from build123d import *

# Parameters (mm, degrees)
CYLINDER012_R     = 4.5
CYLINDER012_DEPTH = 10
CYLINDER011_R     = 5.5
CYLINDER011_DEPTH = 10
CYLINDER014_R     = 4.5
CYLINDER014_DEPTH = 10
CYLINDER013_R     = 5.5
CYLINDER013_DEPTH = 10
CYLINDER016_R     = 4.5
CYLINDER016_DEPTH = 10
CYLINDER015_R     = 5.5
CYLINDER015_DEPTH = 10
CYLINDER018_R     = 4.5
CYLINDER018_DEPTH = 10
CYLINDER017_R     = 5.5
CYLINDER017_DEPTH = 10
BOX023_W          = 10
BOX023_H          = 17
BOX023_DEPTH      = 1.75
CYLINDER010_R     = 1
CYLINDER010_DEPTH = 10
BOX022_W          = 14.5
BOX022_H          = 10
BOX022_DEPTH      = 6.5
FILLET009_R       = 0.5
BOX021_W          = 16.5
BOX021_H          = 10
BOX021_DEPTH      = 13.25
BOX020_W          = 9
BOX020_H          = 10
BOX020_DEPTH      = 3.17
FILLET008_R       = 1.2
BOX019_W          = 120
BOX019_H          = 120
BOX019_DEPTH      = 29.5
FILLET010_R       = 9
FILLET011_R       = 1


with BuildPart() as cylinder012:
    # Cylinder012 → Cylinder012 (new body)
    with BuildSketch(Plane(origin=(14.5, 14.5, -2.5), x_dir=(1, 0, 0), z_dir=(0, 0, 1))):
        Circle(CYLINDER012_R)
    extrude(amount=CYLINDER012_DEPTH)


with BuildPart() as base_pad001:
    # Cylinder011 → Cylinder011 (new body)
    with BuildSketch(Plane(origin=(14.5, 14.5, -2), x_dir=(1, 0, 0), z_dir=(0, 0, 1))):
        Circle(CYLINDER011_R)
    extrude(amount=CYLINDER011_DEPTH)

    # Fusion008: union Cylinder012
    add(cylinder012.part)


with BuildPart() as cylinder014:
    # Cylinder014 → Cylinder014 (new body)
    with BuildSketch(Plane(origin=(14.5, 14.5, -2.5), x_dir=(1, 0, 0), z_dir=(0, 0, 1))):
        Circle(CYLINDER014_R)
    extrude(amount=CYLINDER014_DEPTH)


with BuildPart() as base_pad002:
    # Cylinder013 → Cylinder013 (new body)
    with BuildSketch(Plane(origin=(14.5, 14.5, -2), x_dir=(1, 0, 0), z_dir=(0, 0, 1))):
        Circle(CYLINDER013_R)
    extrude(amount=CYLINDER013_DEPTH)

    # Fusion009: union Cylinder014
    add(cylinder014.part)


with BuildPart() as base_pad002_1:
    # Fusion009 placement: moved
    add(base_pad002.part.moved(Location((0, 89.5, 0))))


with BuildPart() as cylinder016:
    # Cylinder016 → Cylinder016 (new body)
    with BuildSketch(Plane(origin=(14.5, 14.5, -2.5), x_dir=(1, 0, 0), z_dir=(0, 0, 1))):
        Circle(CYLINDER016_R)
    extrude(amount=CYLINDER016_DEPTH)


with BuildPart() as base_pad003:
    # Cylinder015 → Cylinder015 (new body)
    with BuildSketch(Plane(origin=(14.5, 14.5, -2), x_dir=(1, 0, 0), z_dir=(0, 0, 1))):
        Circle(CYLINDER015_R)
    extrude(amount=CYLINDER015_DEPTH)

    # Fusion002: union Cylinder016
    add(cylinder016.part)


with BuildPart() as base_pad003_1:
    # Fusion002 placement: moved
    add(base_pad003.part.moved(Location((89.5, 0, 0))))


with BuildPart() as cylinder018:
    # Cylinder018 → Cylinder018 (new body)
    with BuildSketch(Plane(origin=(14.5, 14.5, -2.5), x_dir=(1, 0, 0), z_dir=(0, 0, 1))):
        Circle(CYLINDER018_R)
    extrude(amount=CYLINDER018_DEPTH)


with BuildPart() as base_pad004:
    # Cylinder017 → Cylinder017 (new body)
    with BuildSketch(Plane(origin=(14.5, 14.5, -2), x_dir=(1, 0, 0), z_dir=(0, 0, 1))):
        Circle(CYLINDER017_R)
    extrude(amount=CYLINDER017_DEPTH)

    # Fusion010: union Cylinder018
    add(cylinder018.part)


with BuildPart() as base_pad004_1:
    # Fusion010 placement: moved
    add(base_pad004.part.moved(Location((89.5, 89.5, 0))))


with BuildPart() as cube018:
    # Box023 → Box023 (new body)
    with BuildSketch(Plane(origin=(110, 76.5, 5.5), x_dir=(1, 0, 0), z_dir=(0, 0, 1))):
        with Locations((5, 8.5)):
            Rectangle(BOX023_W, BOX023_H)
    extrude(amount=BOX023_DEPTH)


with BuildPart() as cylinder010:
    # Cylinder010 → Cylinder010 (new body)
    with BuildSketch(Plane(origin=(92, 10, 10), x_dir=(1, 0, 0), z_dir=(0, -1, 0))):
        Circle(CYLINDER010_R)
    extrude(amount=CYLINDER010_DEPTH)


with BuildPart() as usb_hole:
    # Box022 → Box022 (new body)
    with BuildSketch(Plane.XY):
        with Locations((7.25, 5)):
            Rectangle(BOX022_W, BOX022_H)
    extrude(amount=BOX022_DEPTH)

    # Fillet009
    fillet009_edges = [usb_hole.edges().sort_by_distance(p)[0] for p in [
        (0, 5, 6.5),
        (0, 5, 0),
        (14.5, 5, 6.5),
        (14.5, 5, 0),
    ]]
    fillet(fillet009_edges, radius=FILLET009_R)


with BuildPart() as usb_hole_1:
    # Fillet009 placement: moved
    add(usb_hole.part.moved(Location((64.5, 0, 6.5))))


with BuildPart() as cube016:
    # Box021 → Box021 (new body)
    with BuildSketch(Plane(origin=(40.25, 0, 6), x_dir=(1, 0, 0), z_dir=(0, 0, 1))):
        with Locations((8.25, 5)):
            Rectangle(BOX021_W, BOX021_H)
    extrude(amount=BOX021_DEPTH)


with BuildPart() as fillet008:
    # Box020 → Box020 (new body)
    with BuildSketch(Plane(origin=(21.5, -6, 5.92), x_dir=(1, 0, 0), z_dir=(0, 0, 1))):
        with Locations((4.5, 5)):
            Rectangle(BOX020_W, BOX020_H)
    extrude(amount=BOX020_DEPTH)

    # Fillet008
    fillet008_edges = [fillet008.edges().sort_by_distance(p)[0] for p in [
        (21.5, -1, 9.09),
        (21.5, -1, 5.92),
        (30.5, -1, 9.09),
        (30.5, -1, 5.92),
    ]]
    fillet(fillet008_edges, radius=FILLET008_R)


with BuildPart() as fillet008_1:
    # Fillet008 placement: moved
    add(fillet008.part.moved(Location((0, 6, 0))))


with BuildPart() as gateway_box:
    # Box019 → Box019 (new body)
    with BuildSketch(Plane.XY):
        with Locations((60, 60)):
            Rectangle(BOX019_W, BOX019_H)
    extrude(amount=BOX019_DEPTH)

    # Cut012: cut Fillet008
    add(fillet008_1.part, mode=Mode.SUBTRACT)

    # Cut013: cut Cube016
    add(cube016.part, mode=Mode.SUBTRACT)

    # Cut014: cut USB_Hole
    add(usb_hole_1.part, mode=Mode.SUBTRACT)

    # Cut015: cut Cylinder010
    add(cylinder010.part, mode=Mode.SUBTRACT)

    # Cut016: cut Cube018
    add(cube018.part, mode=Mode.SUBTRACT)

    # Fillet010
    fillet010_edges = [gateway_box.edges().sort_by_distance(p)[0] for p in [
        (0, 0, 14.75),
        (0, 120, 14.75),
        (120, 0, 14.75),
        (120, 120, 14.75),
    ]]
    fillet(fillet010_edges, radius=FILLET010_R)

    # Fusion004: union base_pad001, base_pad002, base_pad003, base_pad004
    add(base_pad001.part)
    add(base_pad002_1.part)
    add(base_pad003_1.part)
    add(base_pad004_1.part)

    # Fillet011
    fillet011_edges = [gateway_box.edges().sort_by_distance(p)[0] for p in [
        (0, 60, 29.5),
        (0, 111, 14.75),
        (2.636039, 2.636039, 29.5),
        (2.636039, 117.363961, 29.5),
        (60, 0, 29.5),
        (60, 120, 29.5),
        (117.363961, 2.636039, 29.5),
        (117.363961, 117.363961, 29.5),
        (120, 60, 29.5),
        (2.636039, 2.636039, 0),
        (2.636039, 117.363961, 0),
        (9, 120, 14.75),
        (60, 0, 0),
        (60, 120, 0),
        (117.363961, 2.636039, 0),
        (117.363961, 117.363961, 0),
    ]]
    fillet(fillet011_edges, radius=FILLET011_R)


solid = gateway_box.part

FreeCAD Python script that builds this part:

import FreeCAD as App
import Part
import Sketcher
from FreeCAD import Vector
Q = App.Units.Quantity


def edges_at(feature, points):
    """Names of the edges that pass closest to the given points."""
    edges = feature.Shape.Edges
    near = lambda p: min(range(len(edges)), key=lambda i: edges[i].distToShape(Part.Vertex(*p))[0])
    return sorted({f"Edge{near(p) + 1}" for p in points})


def add_polygon(sketch, points):
    """Adds a closed chain of lines whose ends are joined by coincident constraints."""
    first, n = sketch.GeometryCount, len(points)
    for a, b in zip(points, points[1:] + points[:1]):
        sketch.addGeometry(Part.LineSegment(App.Vector(*a, 0), App.Vector(*b, 0)), False)
    for i in range(n):
        sketch.addConstraint(Sketcher.Constraint("Coincident", first + i, 2, first + (i + 1) % n, 1))

doc = App.newDocument("Part")
params = doc.addObject("Spreadsheet::Sheet", "Params")
for row, (alias, value) in enumerate([
    ("sketch1_diameter", "9 mm"),
    ("pad1_length", "10 mm"),
    ("sketch2_diameter", "11 mm"),
    ("pad2_length", "10 mm"),
    ("sketch3_diameter", "9 mm"),
    ("pad3_length", "10 mm"),
    ("sketch4_diameter", "11 mm"),
    ("pad4_length", "10 mm"),
    ("sketch5_diameter", "9 mm"),
    ("pad5_length", "10 mm"),
    ("sketch6_diameter", "11 mm"),
    ("pad6_length", "10 mm"),
    ("sketch7_diameter", "9 mm"),
    ("pad7_length", "10 mm"),
    ("sketch8_diameter", "11 mm"),
    ("pad8_length", "10 mm"),
    ("sketch9_width", "10 mm"),
    ("sketch9_height", "17 mm"),
    ("pad9_length", "1.75 mm"),
    ("sketch10_diameter", "2 mm"),
    ("pad10_length", "10 mm"),
    ("sketch11_height", "10 mm"),
    ("sketch11_width", "14.5 mm"),
    ("pad11_length", "6.5 mm"),
    ("fillet_radius", "0.5 mm"),
    ("sketch12_height", "10 mm"),
    ("sketch12_width", "16.5 mm"),
    ("pad12_length", "13.25 mm"),
    ("sketch13_width", "9 mm"),
    ("sketch13_height", "10 mm"),
    ("pad13_length", "3.17 mm"),
    ("fillet2_radius", "1.2 mm"),
    ("sketch14_width", "120 mm"),
    ("pad14_length", "29.5 mm"),
    ("fillet3_radius", "9 mm"),
    ("fillet4_radius", "1 mm"),
], start=1):
    params.set(f"A{row}", alias)
    params.set(f"B{row}", "=" + value)
    params.setAlias(f"B{row}", alias)

body = doc.addObject("PartDesign::Body", "Body")

# Sketch on XY plane
sketch1 = body.newObject("Sketcher::SketchObject", "Sketch")
sketch1.AttachmentSupport = (doc.getObject("XY_Plane"), [""])
sketch1.MapMode = "FlatFace"
sketch1.AttachmentOffset = App.Placement(Vector(0, 0, -2.5), App.Rotation())
sketch1.addGeometry(Part.Circle(Vector(14.5, 14.5, 0), Vector(0, 0, 1), 4.5), False)
sketch1.addConstraint(Sketcher.Constraint("Diameter", 0, Q("9 mm")))
sketch1.addConstraint(Sketcher.Constraint("DistanceX", -1, 1, 0, 3, Q("14.5 mm")))
sketch1.addConstraint(Sketcher.Constraint("DistanceY", -1, 1, 0, 3, Q("14.5 mm")))
sketch1.setExpression("Constraints[0]", "Params.sketch1_diameter")
pad1 = body.newObject("PartDesign::Pad", "Pad")
pad1.Profile = sketch1
pad1.setExpression("Length", "Params.pad1_length")
body2 = doc.addObject("PartDesign::Body", "Body001")

# Sketch on XY plane
sketch2 = body2.newObject("Sketcher::SketchObject", "Sketch001")
sketch2.AttachmentSupport = (doc.getObject("XY_Plane001"), [""])
sketch2.MapMode = "FlatFace"
sketch2.AttachmentOffset = App.Placement(Vector(0, 0, -2), App.Rotation())
sketch2.addGeometry(Part.Circle(Vector(14, 14, 0), Vector(0, 0, 1), 6), False)
sketch2.addConstraint(Sketcher.Constraint("Diameter", 0, Q("11 mm")))
sketch2.addConstraint(Sketcher.Constraint("DistanceX", -1, 1, 0, 3, Q("14.5 mm")))
sketch2.addConstraint(Sketcher.Constraint("DistanceY", -1, 1, 0, 3, Q("14.5 mm")))
sketch2.setExpression("Constraints[0]", "Params.sketch2_diameter")
pad2 = body2.newObject("PartDesign::Pad", "Pad001")
pad2.Profile = sketch2
pad2.setExpression("Length", "Params.pad2_length")
doc.recompute()

boolean = body2.newObject("PartDesign::Boolean", "Boolean")
boolean.Type = "Fuse"
boolean.addObjects([body])
body3 = doc.addObject("PartDesign::Body", "Body002")

# Sketch on XY plane
sketch3 = body3.newObject("Sketcher::SketchObject", "Sketch002")
sketch3.AttachmentSupport = (doc.getObject("XY_Plane002"), [""])
sketch3.MapMode = "FlatFace"
sketch3.AttachmentOffset = App.Placement(Vector(0, 0, -2.5), App.Rotation())
sketch3.addGeometry(Part.Circle(Vector(14.5, 14.5, 0), Vector(0, 0, 1), 4.5), False)
sketch3.addConstraint(Sketcher.Constraint("Diameter", 0, Q("9 mm")))
sketch3.addConstraint(Sketcher.Constraint("DistanceX", -1, 1, 0, 3, Q("14.5 mm")))
sketch3.addConstraint(Sketcher.Constraint("DistanceY", -1, 1, 0, 3, Q("14.5 mm")))
sketch3.setExpression("Constraints[0]", "Params.sketch3_diameter")
pad3 = body3.newObject("PartDesign::Pad", "Pad002")
pad3.Profile = sketch3
pad3.setExpression("Length", "Params.pad3_length")
body4 = doc.addObject("PartDesign::Body", "Body003")

# Sketch on XY plane
sketch4 = body4.newObject("Sketcher::SketchObject", "Sketch003")
sketch4.AttachmentSupport = (doc.getObject("XY_Plane003"), [""])
sketch4.MapMode = "FlatFace"
sketch4.AttachmentOffset = App.Placement(Vector(0, 0, -2), App.Rotation())
sketch4.addGeometry(Part.Circle(Vector(14, 14, 0), Vector(0, 0, 1), 6), False)
sketch4.addConstraint(Sketcher.Constraint("Diameter", 0, Q("11 mm")))
sketch4.addConstraint(Sketcher.Constraint("DistanceX", -1, 1, 0, 3, Q("14.5 mm")))
sketch4.addConstraint(Sketcher.Constraint("DistanceY", -1, 1, 0, 3, Q("14.5 mm")))
sketch4.setExpression("Constraints[0]", "Params.sketch4_diameter")
pad4 = body4.newObject("PartDesign::Pad", "Pad003")
pad4.Profile = sketch4
pad4.setExpression("Length", "Params.pad4_length")
doc.recompute()

boolean2 = body4.newObject("PartDesign::Boolean", "Boolean001")
boolean2.Type = "Fuse"
boolean2.addObjects([body3])
body5 = doc.addObject("PartDesign::Body", "Body004")
doc.recompute()

body4.Placement = App.Placement(Vector(0, 89.5, 0), App.Rotation(Vector(0, 0, 1), 0))
boolean3 = body5.newObject("PartDesign::Boolean", "Boolean002")
boolean3.Type = "Fuse"
boolean3.addObjects([body4])
body6 = doc.addObject("PartDesign::Body", "Body005")

# Sketch on XY plane
sketch5 = body6.newObject("Sketcher::SketchObject", "Sketch004")
sketch5.AttachmentSupport = (doc.getObject("XY_Plane005"), [""])
sketch5.MapMode = "FlatFace"
sketch5.AttachmentOffset = App.Placement(Vector(0, 0, -2.5), App.Rotation())
sketch5.addGeometry(Part.Circle(Vector(14.5, 14.5, 0), Vector(0, 0, 1), 4.5), False)
sketch5.addConstraint(Sketcher.Constraint("Diameter", 0, Q("9 mm")))
sketch5.addConstraint(Sketcher.Constraint("DistanceX", -1, 1, 0, 3, Q("14.5 mm")))
sketch5.addConstraint(Sketcher.Constraint("DistanceY", -1, 1, 0, 3, Q("14.5 mm")))
sketch5.setExpression("Constraints[0]", "Params.sketch5_diameter")
pad5 = body6.newObject("PartDesign::Pad", "Pad004")
pad5.Profile = sketch5
pad5.setExpression("Length", "Params.pad5_length")
body7 = doc.addObject("PartDesign::Body", "Body006")

# Sketch on XY plane
sketch6 = body7.newObject("Sketcher::SketchObject", "Sketch005")
sketch6.AttachmentSupport = (doc.getObject("XY_Plane006"), [""])
sketch6.MapMode = "FlatFace"
sketch6.AttachmentOffset = App.Placement(Vector(0, 0, -2), App.Rotation())
sketch6.addGeometry(Part.Circle(Vector(14, 14, 0), Vector(0, 0, 1), 6), False)
sketch6.addConstraint(Sketcher.Constraint("Diameter", 0, Q("11 mm")))
sketch6.addConstraint(Sketcher.Constraint("DistanceX", -1, 1, 0, 3, Q("14.5 mm")))
sketch6.addConstraint(Sketcher.Constraint("DistanceY", -1, 1, 0, 3, Q("14.5 mm")))
sketch6.setExpression("Constraints[0]", "Params.sketch6_diameter")
pad6 = body7.newObject("PartDesign::Pad", "Pad005")
pad6.Profile = sketch6
pad6.setExpression("Length", "Params.pad6_length")
doc.recompute()

boolean4 = body7.newObject("PartDesign::Boolean", "Boolean003")
boolean4.Type = "Fuse"
boolean4.addObjects([body6])
body8 = doc.addObject("PartDesign::Body", "Body007")
doc.recompute()

body7.Placement = App.Placement(Vector(89.5, 0, 0), App.Rotation(Vector(0, 0, 1), 0))
boolean5 = body8.newObject("PartDesign::Boolean", "Boolean004")
boolean5.Type = "Fuse"
boolean5.addObjects([body7])
body9 = doc.addObject("PartDesign::Body", "Body008")

# Sketch on XY plane
sketch7 = body9.newObject("Sketcher::SketchObject", "Sketch006")
sketch7.AttachmentSupport = (doc.getObject("XY_Plane008"), [""])
sketch7.MapMode = "FlatFace"
sketch7.AttachmentOffset = App.Placement(Vector(0, 0, -2.5), App.Rotation())
sketch7.addGeometry(Part.Circle(Vector(14.5, 14.5, 0), Vector(0, 0, 1), 4.5), False)
sketch7.addConstraint(Sketcher.Constraint("Diameter", 0, Q("9 mm")))
sketch7.addConstraint(Sketcher.Constraint("DistanceX", -1, 1, 0, 3, Q("14.5 mm")))
sketch7.addConstraint(Sketcher.Constraint("DistanceY", -1, 1, 0, 3, Q("14.5 mm")))
sketch7.setExpression("Constraints[0]", "Params.sketch7_diameter")
pad7 = body9.newObject("PartDesign::Pad", "Pad006")
pad7.Profile = sketch7
pad7.setExpression("Length", "Params.pad7_length")
body10 = doc.addObject("PartDesign::Body", "Body009")

# Sketch on XY plane
sketch8 = body10.newObject("Sketcher::SketchObject", "Sketch007")
sketch8.AttachmentSupport = (doc.getObject("XY_Plane009"), [""])
sketch8.MapMode = "FlatFace"
sketch8.AttachmentOffset = App.Placement(Vector(0, 0, -2), App.Rotation())
sketch8.addGeometry(Part.Circle(Vector(14, 14, 0), Vector(0, 0, 1), 6), False)
sketch8.addConstraint(Sketcher.Constraint("Diameter", 0, Q("11 mm")))
sketch8.addConstraint(Sketcher.Constraint("DistanceX", -1, 1, 0, 3, Q("14.5 mm")))
sketch8.addConstraint(Sketcher.Constraint("DistanceY", -1, 1, 0, 3, Q("14.5 mm")))
sketch8.setExpression("Constraints[0]", "Params.sketch8_diameter")
pad8 = body10.newObject("PartDesign::Pad", "Pad007")
pad8.Profile = sketch8
pad8.setExpression("Length", "Params.pad8_length")
doc.recompute()

boolean6 = body10.newObject("PartDesign::Boolean", "Boolean005")
boolean6.Type = "Fuse"
boolean6.addObjects([body9])
body11 = doc.addObject("PartDesign::Body", "Body010")
doc.recompute()

body10.Placement = App.Placement(Vector(89.5, 89.5, 0), App.Rotation(Vector(0, 0, 1), 0))
boolean7 = body11.newObject("PartDesign::Boolean", "Boolean006")
boolean7.Type = "Fuse"
boolean7.addObjects([body10])
body12 = doc.addObject("PartDesign::Body", "Body011")

# Sketch on XY plane
sketch9 = body12.newObject("Sketcher::SketchObject", "Sketch008")
sketch9.AttachmentSupport = (doc.getObject("XY_Plane011"), [""])
sketch9.MapMode = "FlatFace"
sketch9.AttachmentOffset = App.Placement(Vector(0, 0, 5.5), App.Rotation())
add_polygon(sketch9, [(110, 94), (110, 76), (120, 76), (120, 94)])  # lines 0-3
sketch9.addConstraint(Sketcher.Constraint("Vertical", 0))
sketch9.addConstraint(Sketcher.Constraint("Horizontal", 1))
sketch9.addConstraint(Sketcher.Constraint("Vertical", 2))
sketch9.addConstraint(Sketcher.Constraint("Horizontal", 3))
sketch9.addConstraint(Sketcher.Constraint("DistanceX", 1, 1, 1, 2, Q("10 mm")))
sketch9.addConstraint(Sketcher.Constraint("DistanceY", 0, 2, 0, 1, Q("17 mm")))
sketch9.addConstraint(Sketcher.Constraint("DistanceX", -1, 1, 0, 2, Q("110 mm")))
sketch9.addConstraint(Sketcher.Constraint("DistanceY", -1, 1, 0, 2, Q("76.5 mm")))
sketch9.setExpression("Constraints[8]", "Params.sketch9_width")
sketch9.setExpression("Constraints[9]", "Params.sketch9_height")
pad9 = body12.newObject("PartDesign::Pad", "Pad008")
pad9.Profile = sketch9
pad9.setExpression("Length", "Params.pad9_length")
body13 = doc.addObject("PartDesign::Body", "Body012")

# Sketch on XZ plane
sketch10 = body13.newObject("Sketcher::SketchObject", "Sketch009")
sketch10.AttachmentSupport = (doc.getObject("XZ_Plane012"), [""])
sketch10.MapMode = "FlatFace"
sketch10.AttachmentOffset = App.Placement(Vector(0, 0, -10), App.Rotation())
sketch10.addGeometry(Part.Circle(Vector(92, 10, 0), Vector(0, 0, 1), 1), False)
sketch10.addConstraint(Sketcher.Constraint("Diameter", 0, Q("2 mm")))
sketch10.addConstraint(Sketcher.Constraint("DistanceX", -1, 1, 0, 3, Q("92 mm")))
sketch10.addConstraint(Sketcher.Constraint("DistanceY", -1, 1, 0, 3, Q("10 mm")))
sketch10.setExpression("Constraints[0]", "Params.sketch10_diameter")
pad10 = body13.newObject("PartDesign::Pad", "Pad009")
pad10.Profile = sketch10
pad10.setExpression("Length", "Params.pad10_length")
body14 = doc.addObject("PartDesign::Body", "Body013")

# Sketch on XY plane
sketch11 = body14.newObject("Sketcher::SketchObject", "Sketch010")
sketch11.AttachmentSupport = (doc.getObject("XY_Plane013"), [""])
sketch11.MapMode = "FlatFace"
add_polygon(sketch11, [(0, 10), (0, 0), (14, 0), (14, 10)])  # lines 0-3
sketch11.addConstraint(Sketcher.Constraint("Vertical", 0))
sketch11.addConstraint(Sketcher.Constraint("Horizontal", 1))
sketch11.addConstraint(Sketcher.Constraint("Vertical", 2))
sketch11.addConstraint(Sketcher.Constraint("Horizontal", 3))
sketch11.addConstraint(Sketcher.Constraint("Coincident", 0, 2, -1, 1))
sketch11.addConstraint(Sketcher.Constraint("DistanceY", 0, 2, 0, 1, Q("10 mm")))
sketch11.addConstraint(Sketcher.Constraint("DistanceX", 1, 1, 1, 2, Q("14.5 mm")))
sketch11.setExpression("Constraints[9]", "Params.sketch11_height")
sketch11.setExpression("Constraints[10]", "Params.sketch11_width")
pad11 = body14.newObject("PartDesign::Pad", "Pad010")
pad11.Profile = sketch11
pad11.setExpression("Length", "Params.pad11_length")
doc.recompute()

fillet = body14.newObject("PartDesign::Fillet", "Fillet")
fillet.Base = (pad11, edges_at(pad11, [
    (0, 5, 6.5),
    (0, 5, 0),
    (14.5, 5, 6.5),
    (14.5, 5, 0),
]))
fillet.setExpression("Radius", "Params.fillet_radius")
body15 = doc.addObject("PartDesign::Body", "Body014")
doc.recompute()

body14.Placement = App.Placement(Vector(64.5, 0, 6.5), App.Rotation(Vector(0, 0, 1), 0))
boolean8 = body15.newObject("PartDesign::Boolean", "Boolean007")
boolean8.Type = "Fuse"
boolean8.addObjects([body14])
body16 = doc.addObject("PartDesign::Body", "Body015")

# Sketch on XY plane
sketch12 = body16.newObject("Sketcher::SketchObject", "Sketch011")
sketch12.AttachmentSupport = (doc.getObject("XY_Plane015"), [""])
sketch12.MapMode = "FlatFace"
sketch12.AttachmentOffset = App.Placement(Vector(0, 0, 6), App.Rotation())
add_polygon(sketch12, [(40, 10), (40, 0), (57, 0), (57, 10)])  # lines 0-3
sketch12.addConstraint(Sketcher.Constraint("Vertical", 0))
sketch12.addConstraint(Sketcher.Constraint("Horizontal", 1))
sketch12.addConstraint(Sketcher.Constraint("Vertical", 2))
sketch12.addConstraint(Sketcher.Constraint("Horizontal", 3))
sketch12.addConstraint(Sketcher.Constraint("PointOnObject", 0, 2, -1))
sketch12.addConstraint(Sketcher.Constraint("DistanceY", 0, 2, 0, 1, Q("10 mm")))
sketch12.addConstraint(Sketcher.Constraint("DistanceX", 1, 1, 1, 2, Q("16.5 mm")))
sketch12.addConstraint(Sketcher.Constraint("DistanceX", -1, 1, 0, 2, Q("40.25 mm")))
sketch12.setExpression("Constraints[9]", "Params.sketch12_height")
sketch12.setExpression("Constraints[10]", "Params.sketch12_width")
pad12 = body16.newObject("PartDesign::Pad", "Pad011")
pad12.Profile = sketch12
pad12.setExpression("Length", "Params.pad12_length")
body17 = doc.addObject("PartDesign::Body", "Body016")

# Sketch on XY plane
sketch13 = body17.newObject("Sketcher::SketchObject", "Sketch012")
sketch13.AttachmentSupport = (doc.getObject("XY_Plane016"), [""])
sketch13.MapMode = "FlatFace"
sketch13.AttachmentOffset = App.Placement(Vector(0, 0, 5.92), App.Rotation())
add_polygon(sketch13, [(22, 4), (22, -6), (30, -6), (30, 4)])  # lines 0-3
sketch13.addConstraint(Sketcher.Constraint("Vertical", 0))
sketch13.addConstraint(Sketcher.Constraint("Horizontal", 1))
sketch13.addConstraint(Sketcher.Constraint("Vertical", 2))
sketch13.addConstraint(Sketcher.Constraint("Horizontal", 3))
sketch13.addConstraint(Sketcher.Constraint("DistanceX", 1, 1, 1, 2, Q("9 mm")))
sketch13.addConstraint(Sketcher.Constraint("DistanceY", 0, 2, 0, 1, Q("10 mm")))
sketch13.addConstraint(Sketcher.Constraint("DistanceY", 0, 2, -1, 1, Q("6 mm")))
sketch13.addConstraint(Sketcher.Constraint("DistanceX", -1, 1, 0, 2, Q("21.5 mm")))
sketch13.setExpression("Constraints[8]", "Params.sketch13_width")
sketch13.setExpression("Constraints[9]", "Params.sketch13_height")
pad13 = body17.newObject("PartDesign::Pad", "Pad012")
pad13.Profile = sketch13
pad13.setExpression("Length", "Params.pad13_length")
doc.recompute()

fillet2 = body17.newObject("PartDesign::Fillet", "Fillet001")
fillet2.Base = (pad13, edges_at(pad13, [
    (21.5, -1, 9.09),
    (21.5, -1, 5.92),
    (30.5, -1, 9.09),
    (30.5, -1, 5.92),
]))
fillet2.setExpression("Radius", "Params.fillet2_radius")
body18 = doc.addObject("PartDesign::Body", "Body017")
doc.recompute()

body17.Placement = App.Placement(Vector(0, 6, 0), App.Rotation(Vector(0, 0, 1), 0))
boolean9 = body18.newObject("PartDesign::Boolean", "Boolean008")
boolean9.Type = "Fuse"
boolean9.addObjects([body17])
body19 = doc.addObject("PartDesign::Body", "Body018")

# Sketch on XY plane
sketch14 = body19.newObject("Sketcher::SketchObject", "Sketch013")
sketch14.AttachmentSupport = (doc.getObject("XY_Plane018"), [""])
sketch14.MapMode = "FlatFace"
add_polygon(sketch14, [(0, 120), (0, 0), (120, 0), (120, 120)])  # lines 0-3
sketch14.addConstraint(Sketcher.Constraint("Vertical", 0))
sketch14.addConstraint(Sketcher.Constraint("Horizontal", 1))
sketch14.addConstraint(Sketcher.Constraint("Vertical", 2))
sketch14.addConstraint(Sketcher.Constraint("Horizontal", 3))
sketch14.addConstraint(Sketcher.Constraint("Coincident", 0, 2, -1, 1))
sketch14.addConstraint(Sketcher.Constraint("Equal", 3, 0))
sketch14.addConstraint(Sketcher.Constraint("DistanceX", 1, 1, 1, 2, Q("120 mm")))
sketch14.setExpression("Constraints[10]", "Params.sketch14_width")
pad14 = body19.newObject("PartDesign::Pad", "Pad013")
pad14.Profile = sketch14
pad14.setExpression("Length", "Params.pad14_length")
doc.recompute()

boolean10 = body19.newObject("PartDesign::Boolean", "Boolean009")
boolean10.Type = "Cut"
boolean10.addObjects([body18])
doc.recompute()

boolean11 = body19.newObject("PartDesign::Boolean", "Boolean010")
boolean11.Type = "Cut"
boolean11.addObjects([body16])
doc.recompute()

boolean12 = body19.newObject("PartDesign::Boolean", "Boolean011")
boolean12.Type = "Cut"
boolean12.addObjects([body15])
doc.recompute()

boolean13 = body19.newObject("PartDesign::Boolean", "Boolean012")
boolean13.Type = "Cut"
boolean13.addObjects([body13])
doc.recompute()

boolean14 = body19.newObject("PartDesign::Boolean", "Boolean013")
boolean14.Type = "Cut"
boolean14.addObjects([body12])
doc.recompute()

fillet3 = body19.newObject("PartDesign::Fillet", "Fillet002")
fillet3.Base = (boolean14, edges_at(boolean14, [
    (0, 0, 14.75),
    (0, 120, 14.75),
    (120, 0, 14.75),
    (120, 120, 14.75),
]))
fillet3.setExpression("Radius", "Params.fillet3_radius")
doc.recompute()

boolean15 = body19.newObject("PartDesign::Boolean", "Boolean014")
boolean15.Type = "Fuse"
boolean15.addObjects([body2])
doc.recompute()

boolean16 = body19.newObject("PartDesign::Boolean", "Boolean015")
boolean16.Type = "Fuse"
boolean16.addObjects([body5])
doc.recompute()

boolean17 = body19.newObject("PartDesign::Boolean", "Boolean016")
boolean17.Type = "Fuse"
boolean17.addObjects([body8])
doc.recompute()

boolean18 = body19.newObject("PartDesign::Boolean", "Boolean017")
boolean18.Type = "Fuse"
boolean18.addObjects([body11])
doc.recompute()

fillet4 = body19.newObject("PartDesign::Fillet", "Fillet003")
fillet4.Base = (boolean18, edges_at(boolean18, [
    (0, 60, 29.5),
    (0, 111, 14.75),
    (2.636, 2.636, 29.5),
    (2.636, 117.364, 29.5),
    (60, 0, 29.5),
    (60, 120, 29.5),
    (117.364, 2.636, 29.5),
    (117.364, 117.364, 29.5),
    (120, 60, 29.5),
    (2.636, 2.636, 0),
    (2.636, 117.364, 0),
    (9, 120, 14.75),
    (60, 0, 0),
    (60, 120, 0),
    (117.364, 2.636, 0),
    (117.364, 117.364, 0),
]))
fillet4.setExpression("Radius", "Params.fillet4_radius")

doc.recompute()
